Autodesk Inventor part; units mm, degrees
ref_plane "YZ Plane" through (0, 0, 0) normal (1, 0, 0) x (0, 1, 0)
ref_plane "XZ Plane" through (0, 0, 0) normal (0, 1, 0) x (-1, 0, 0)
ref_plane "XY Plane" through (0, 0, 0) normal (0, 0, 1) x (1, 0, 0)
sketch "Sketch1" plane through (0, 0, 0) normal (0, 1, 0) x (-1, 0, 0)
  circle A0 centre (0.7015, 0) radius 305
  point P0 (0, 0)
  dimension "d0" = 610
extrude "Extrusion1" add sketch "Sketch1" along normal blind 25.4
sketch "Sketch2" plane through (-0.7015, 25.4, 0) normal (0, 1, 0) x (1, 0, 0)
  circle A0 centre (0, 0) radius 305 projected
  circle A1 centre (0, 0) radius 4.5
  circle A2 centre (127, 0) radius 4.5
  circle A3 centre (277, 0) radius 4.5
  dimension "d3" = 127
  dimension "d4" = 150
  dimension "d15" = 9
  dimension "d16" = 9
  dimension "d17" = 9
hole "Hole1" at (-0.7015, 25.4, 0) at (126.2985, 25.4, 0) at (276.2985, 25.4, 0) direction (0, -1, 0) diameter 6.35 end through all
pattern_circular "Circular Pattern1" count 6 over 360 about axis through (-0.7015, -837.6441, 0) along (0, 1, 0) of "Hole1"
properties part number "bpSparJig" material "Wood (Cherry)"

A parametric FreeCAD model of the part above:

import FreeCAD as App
import Part
import Sketcher

V = App.Vector
Q = App.Units.Quantity

doc = App.newDocument("Part")
body = doc.addObject("PartDesign::Body", "Body")

# Sketch on XZ plane
sketch1 = body.newObject("Sketcher::SketchObject", "Sketch")
sketch1.AttachmentSupport = (doc.getObject("XZ_Plane"), [""])
sketch1.MapMode = "FlatFace"
sketch1.addGeometry(Part.Circle(V(-1, 0, 0), V(0, 0, 1), 305), False)
sketch1.addConstraint([
    Sketcher.Constraint("PointOnObject", 0, 3, -1),
    Sketcher.Constraint("Diameter", 0, 610.0),
    Sketcher.Constraint("DistanceX", 0, 3, -1, 1, 0.7015),
])
pad1 = body.newObject("PartDesign::Pad", "Pad")
pad1.Profile = sketch1
pad1.Length = Q("1 in")
pad1.Reversed = True

# Sketch on XZ plane
sketch2 = body.newObject("Sketcher::SketchObject", "Sketch001")
sketch2.AttachmentSupport = (doc.getObject("XZ_Plane"), [""])
sketch2.MapMode = "FlatFace"
sketch2.AttachmentOffset = App.Placement(V(0, 0, -1 * 25.4), App.Rotation())
sketch2.addGeometry([
    Part.Circle(V(-0.7, 0, 0), V(0, 0, 1), 3.2),
    Part.Circle(V(126.3, 0, 0), V(0, 0, 1), 3.2),
    Part.Circle(V(276.3, 0, 0), V(0, 0, 1), 3.2),
], False)
sketch2.addConstraint([
    Sketcher.Constraint("Equal", 0, 1),
    Sketcher.Constraint("Equal", 1, 2),
    Sketcher.Constraint("PointOnObject", 0, 3, -1),
    Sketcher.Constraint("PointOnObject", 1, 3, -1),
    Sketcher.Constraint("PointOnObject", 2, 3, -1),
    Sketcher.Constraint("Diameter", 0, Q("0.25 in")),
    Sketcher.Constraint("DistanceX", 0, 3, 1, 3, Q("5 in")),
    Sketcher.Constraint("DistanceX", -1, 1, 2, 3, Q("10.8779 in")),
    Sketcher.Constraint("DistanceX", 1, 3, 2, 3, Q("5.9055 in")),
])
doc.recompute()
hole = body.newObject("PartDesign::Hole", "Hole")
hole.Profile = sketch2
hole.ThreadType = "None"
hole.Diameter = Q("0.25 in")
hole.DepthType = "ThroughAll"
hole.Reversed = True
doc.recompute()

datumline = body.newObject("PartDesign::Line", "DatumLine")
datumline.Placement = App.Placement(V(-0.7015, 0, 0), App.Rotation(V(0, 0, 1), V(0, 1, 0)))
polarpattern = body.newObject("PartDesign::PolarPattern", "PolarPattern")
polarpattern.Originals = [hole]
polarpattern.Axis = (datumline, [""])
polarpattern.Angle = 360
polarpattern.Occurrences = 6
body.Tip = polarpattern

doc.recompute()
